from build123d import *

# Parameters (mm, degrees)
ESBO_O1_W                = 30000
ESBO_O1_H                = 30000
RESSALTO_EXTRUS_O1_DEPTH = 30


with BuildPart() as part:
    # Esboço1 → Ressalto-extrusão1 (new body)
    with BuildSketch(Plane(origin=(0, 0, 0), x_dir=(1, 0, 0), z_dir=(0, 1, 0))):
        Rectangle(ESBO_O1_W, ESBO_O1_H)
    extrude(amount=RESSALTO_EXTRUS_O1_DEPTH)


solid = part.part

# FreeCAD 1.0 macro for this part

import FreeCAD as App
import Part
import Sketcher
from FreeCAD import Vector


def add_polygon(sketch, points):
    """Adds a closed chain of lines whose ends are joined by coincident constraints."""
    first, n = sketch.GeometryCount, len(points)
    for a, b in zip(points, points[1:] + points[:1]):
        sketch.addGeometry(Part.LineSegment(App.Vector(*a, 0), App.Vector(*b, 0)), False)
    for i in range(n):
        sketch.addConstraint(Sketcher.Constraint("Coincident", first + i, 2, first + (i + 1) % n, 1))

doc = App.newDocument("Part")
body = doc.addObject("PartDesign::Body", "Body")

sketch1 = doc.addObject("Sketcher::SketchObject", "Sketch")
body.addObject(sketch1)
sketch1.AttachmentSupport = (doc.XZ_Plane, [""])
sketch1.MapMode = "FlatFace"
add_polygon(sketch1, [(-15000, -15000), (-15000, 15000), (15000, 15000), (15000, -15000)])
sketch1.addConstraint([
    Sketcher.Constraint("Vertical", 0),
    Sketcher.Constraint("Horizontal", 1),
    Sketcher.Constraint("Vertical", 2),
    Sketcher.Constraint("Horizontal", 3),
    Sketcher.Constraint("Symmetric", 0, 2, 2, 2, -1, 1),
    Sketcher.Constraint("Equal", 3, 0),
    Sketcher.Constraint("DistanceX", 1, 1, 1, 2, 30000.0),
])
pad1 = doc.addObject("PartDesign::Pad", "Pad")
body.addObject(pad1)
pad1.Profile = sketch1
pad1.Length = 30
pad1.Reversed = True

doc.recompute()
